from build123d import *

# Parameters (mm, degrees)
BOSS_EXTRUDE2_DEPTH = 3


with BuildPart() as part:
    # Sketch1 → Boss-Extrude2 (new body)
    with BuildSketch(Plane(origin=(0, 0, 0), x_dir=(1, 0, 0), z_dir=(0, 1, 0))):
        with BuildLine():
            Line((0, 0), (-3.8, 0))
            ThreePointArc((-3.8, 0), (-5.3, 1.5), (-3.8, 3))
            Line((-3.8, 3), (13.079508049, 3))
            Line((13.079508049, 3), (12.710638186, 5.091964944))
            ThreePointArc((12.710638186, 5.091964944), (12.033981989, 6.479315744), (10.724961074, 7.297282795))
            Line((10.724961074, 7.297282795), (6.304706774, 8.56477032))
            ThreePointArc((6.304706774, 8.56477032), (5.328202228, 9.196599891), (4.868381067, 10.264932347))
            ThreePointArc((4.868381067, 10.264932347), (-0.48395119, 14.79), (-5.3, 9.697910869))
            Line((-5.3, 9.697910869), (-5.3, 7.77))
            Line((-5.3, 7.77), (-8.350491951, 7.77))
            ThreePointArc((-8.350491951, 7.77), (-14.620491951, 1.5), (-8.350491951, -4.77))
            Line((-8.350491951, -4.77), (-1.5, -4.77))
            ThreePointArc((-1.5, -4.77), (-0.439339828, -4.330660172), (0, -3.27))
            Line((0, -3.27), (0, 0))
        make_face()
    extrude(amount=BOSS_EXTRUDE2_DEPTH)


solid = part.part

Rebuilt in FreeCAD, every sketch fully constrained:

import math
import FreeCAD as App
import Part
import Sketcher
from FreeCAD import Vector
Q = App.Units.Quantity

doc = App.newDocument("Part")
body = doc.addObject("PartDesign::Body", "Body")

# Sketch on XZ plane
sketch1 = body.newObject("Sketcher::SketchObject", "Sketch")
sketch1.AttachmentSupport = (doc.getObject("XZ_Plane"), [""])
sketch1.MapMode = "FlatFace"
sketch1.addGeometry([
    Part.LineSegment(Vector(0, 0, 0), Vector(-3.8, 0, 0)),  # 0
    Part.ArcOfCircle(Part.Circle(Vector(-3.8, -1.5, 0), Vector(0, 0, 1), 1.5), math.radians(90), math.radians(270)),  # 1
    Part.LineSegment(Vector(-3.8, -3, 0), Vector(13.079508, -3, 0)),  # 2
    Part.LineSegment(Vector(13.079508, -3, 0), Vector(12.710638, -5.091965, 0)),  # 3
    Part.ArcOfCircle(Part.Circle(Vector(9.953176, -4.60575, 0), Vector(0, 0, 1), 2.8), math.radians(-74), math.radians(-10)),  # 4
    Part.LineSegment(Vector(10.724961, -7.297283, 0), Vector(6.304707, -8.56477, 0)),  # 5
    Part.ArcOfCircle(Part.Circle(Vector(6.855981, -10.487294, 0), Vector(0, 0, 1), 2), math.radians(106), math.radians(173.616619)),  # 6
    Part.ArcOfCircle(Part.Circle(Vector(-0.2, -9.697911, 0), Vector(0, 0, 1), 5.1), math.radians(180), math.radians(353.616619)),  # 7
    Part.LineSegment(Vector(-5.3, -9.697911, 0), Vector(-5.3, -7.77, 0)),  # 8
    Part.LineSegment(Vector(-5.3, -7.77, 0), Vector(-8.350492, -7.77, 0)),  # 9
    Part.ArcOfCircle(Part.Circle(Vector(-8.350492, -1.5, 0), Vector(0, 0, 1), 6.27), math.radians(90), math.radians(270)),  # 10
    Part.LineSegment(Vector(-8.350492, 4.77, 0), Vector(-1.5, 4.77, 0)),  # 11
    Part.ArcOfCircle(Part.Circle(Vector(-1.5, 3.27, 0), Vector(0, 0, 1), 1.5), math.radians(0), math.radians(90)),  # 12
    Part.LineSegment(Vector(0, 3.27, 0), Vector(0, 0, 0)),  # 13
], False)
sketch1.addConstraint([
    Sketcher.Constraint("Tangent", 0, 2, 1, 1),
    Sketcher.Constraint("Tangent", 1, 2, 2, 1),
    Sketcher.Constraint("Coincident", 2, 2, 3, 1),
    Sketcher.Constraint("Tangent", 3, 2, 4, 2),
    Sketcher.Constraint("Tangent", 4, 1, 5, 1),
    Sketcher.Constraint("Tangent", 5, 2, 6, 1),
    Sketcher.Constraint("Tangent", 6, 2, 7, 2),
    Sketcher.Constraint("Tangent", 7, 1, 8, 1),
    Sketcher.Constraint("Coincident", 8, 2, 9, 1),
    Sketcher.Constraint("Tangent", 9, 2, 10, 2),
    Sketcher.Constraint("Tangent", 10, 1, 11, 1),
    Sketcher.Constraint("Tangent", 11, 2, 12, 2),
    Sketcher.Constraint("Tangent", 12, 1, 13, 1),
    Sketcher.Constraint("Coincident", 13, 2, 0, 1),
    Sketcher.Constraint("Horizontal", 0),
    Sketcher.Constraint("Horizontal", 2),
    Sketcher.Constraint("Vertical", 8),
    Sketcher.Constraint("Horizontal", 9),
    Sketcher.Constraint("Horizontal", 11),
    Sketcher.Constraint("Vertical", 13),
    Sketcher.Constraint("Coincident", 13, 2, -1, 1),
    Sketcher.Constraint("Equal", 1, 12),
    Sketcher.Constraint("Horizontal", 1, 3, 10, 3),
    Sketcher.Constraint("Radius", 6, 2.0),
    Sketcher.Constraint("Radius", 1, 1.5),
    Sketcher.Constraint("Radius", 4, 2.8),
    Sketcher.Constraint("Radius", 7, 5.1),
    Sketcher.Constraint("Angle", 3, Q("-100 deg")),
    Sketcher.Constraint("Angle", 5, Q("-164 deg")),
    Sketcher.Constraint("Radius", 10, 6.27),
    Sketcher.Constraint("DistanceX", 0, 2, 0, 1, 3.8),
    Sketcher.Constraint("DistanceX", 7, 3, -1, 1, 0.2),
    Sketcher.Constraint("DistanceX", 2, 1, 2, 2, 16.879508),
    Sketcher.Constraint("DistanceX", 9, 2, 9, 1, 3.050492),
    Sketcher.Constraint("DistanceY", 8, 1, 8, 2, 1.927911),
    Sketcher.Constraint("DistanceX", 6, 2, 6, 3, 1.9876),
])
pad1 = body.newObject("PartDesign::Pad", "Pad")
pad1.Profile = sketch1
pad1.Length = 3
pad1.Reversed = True

doc.recompute()
